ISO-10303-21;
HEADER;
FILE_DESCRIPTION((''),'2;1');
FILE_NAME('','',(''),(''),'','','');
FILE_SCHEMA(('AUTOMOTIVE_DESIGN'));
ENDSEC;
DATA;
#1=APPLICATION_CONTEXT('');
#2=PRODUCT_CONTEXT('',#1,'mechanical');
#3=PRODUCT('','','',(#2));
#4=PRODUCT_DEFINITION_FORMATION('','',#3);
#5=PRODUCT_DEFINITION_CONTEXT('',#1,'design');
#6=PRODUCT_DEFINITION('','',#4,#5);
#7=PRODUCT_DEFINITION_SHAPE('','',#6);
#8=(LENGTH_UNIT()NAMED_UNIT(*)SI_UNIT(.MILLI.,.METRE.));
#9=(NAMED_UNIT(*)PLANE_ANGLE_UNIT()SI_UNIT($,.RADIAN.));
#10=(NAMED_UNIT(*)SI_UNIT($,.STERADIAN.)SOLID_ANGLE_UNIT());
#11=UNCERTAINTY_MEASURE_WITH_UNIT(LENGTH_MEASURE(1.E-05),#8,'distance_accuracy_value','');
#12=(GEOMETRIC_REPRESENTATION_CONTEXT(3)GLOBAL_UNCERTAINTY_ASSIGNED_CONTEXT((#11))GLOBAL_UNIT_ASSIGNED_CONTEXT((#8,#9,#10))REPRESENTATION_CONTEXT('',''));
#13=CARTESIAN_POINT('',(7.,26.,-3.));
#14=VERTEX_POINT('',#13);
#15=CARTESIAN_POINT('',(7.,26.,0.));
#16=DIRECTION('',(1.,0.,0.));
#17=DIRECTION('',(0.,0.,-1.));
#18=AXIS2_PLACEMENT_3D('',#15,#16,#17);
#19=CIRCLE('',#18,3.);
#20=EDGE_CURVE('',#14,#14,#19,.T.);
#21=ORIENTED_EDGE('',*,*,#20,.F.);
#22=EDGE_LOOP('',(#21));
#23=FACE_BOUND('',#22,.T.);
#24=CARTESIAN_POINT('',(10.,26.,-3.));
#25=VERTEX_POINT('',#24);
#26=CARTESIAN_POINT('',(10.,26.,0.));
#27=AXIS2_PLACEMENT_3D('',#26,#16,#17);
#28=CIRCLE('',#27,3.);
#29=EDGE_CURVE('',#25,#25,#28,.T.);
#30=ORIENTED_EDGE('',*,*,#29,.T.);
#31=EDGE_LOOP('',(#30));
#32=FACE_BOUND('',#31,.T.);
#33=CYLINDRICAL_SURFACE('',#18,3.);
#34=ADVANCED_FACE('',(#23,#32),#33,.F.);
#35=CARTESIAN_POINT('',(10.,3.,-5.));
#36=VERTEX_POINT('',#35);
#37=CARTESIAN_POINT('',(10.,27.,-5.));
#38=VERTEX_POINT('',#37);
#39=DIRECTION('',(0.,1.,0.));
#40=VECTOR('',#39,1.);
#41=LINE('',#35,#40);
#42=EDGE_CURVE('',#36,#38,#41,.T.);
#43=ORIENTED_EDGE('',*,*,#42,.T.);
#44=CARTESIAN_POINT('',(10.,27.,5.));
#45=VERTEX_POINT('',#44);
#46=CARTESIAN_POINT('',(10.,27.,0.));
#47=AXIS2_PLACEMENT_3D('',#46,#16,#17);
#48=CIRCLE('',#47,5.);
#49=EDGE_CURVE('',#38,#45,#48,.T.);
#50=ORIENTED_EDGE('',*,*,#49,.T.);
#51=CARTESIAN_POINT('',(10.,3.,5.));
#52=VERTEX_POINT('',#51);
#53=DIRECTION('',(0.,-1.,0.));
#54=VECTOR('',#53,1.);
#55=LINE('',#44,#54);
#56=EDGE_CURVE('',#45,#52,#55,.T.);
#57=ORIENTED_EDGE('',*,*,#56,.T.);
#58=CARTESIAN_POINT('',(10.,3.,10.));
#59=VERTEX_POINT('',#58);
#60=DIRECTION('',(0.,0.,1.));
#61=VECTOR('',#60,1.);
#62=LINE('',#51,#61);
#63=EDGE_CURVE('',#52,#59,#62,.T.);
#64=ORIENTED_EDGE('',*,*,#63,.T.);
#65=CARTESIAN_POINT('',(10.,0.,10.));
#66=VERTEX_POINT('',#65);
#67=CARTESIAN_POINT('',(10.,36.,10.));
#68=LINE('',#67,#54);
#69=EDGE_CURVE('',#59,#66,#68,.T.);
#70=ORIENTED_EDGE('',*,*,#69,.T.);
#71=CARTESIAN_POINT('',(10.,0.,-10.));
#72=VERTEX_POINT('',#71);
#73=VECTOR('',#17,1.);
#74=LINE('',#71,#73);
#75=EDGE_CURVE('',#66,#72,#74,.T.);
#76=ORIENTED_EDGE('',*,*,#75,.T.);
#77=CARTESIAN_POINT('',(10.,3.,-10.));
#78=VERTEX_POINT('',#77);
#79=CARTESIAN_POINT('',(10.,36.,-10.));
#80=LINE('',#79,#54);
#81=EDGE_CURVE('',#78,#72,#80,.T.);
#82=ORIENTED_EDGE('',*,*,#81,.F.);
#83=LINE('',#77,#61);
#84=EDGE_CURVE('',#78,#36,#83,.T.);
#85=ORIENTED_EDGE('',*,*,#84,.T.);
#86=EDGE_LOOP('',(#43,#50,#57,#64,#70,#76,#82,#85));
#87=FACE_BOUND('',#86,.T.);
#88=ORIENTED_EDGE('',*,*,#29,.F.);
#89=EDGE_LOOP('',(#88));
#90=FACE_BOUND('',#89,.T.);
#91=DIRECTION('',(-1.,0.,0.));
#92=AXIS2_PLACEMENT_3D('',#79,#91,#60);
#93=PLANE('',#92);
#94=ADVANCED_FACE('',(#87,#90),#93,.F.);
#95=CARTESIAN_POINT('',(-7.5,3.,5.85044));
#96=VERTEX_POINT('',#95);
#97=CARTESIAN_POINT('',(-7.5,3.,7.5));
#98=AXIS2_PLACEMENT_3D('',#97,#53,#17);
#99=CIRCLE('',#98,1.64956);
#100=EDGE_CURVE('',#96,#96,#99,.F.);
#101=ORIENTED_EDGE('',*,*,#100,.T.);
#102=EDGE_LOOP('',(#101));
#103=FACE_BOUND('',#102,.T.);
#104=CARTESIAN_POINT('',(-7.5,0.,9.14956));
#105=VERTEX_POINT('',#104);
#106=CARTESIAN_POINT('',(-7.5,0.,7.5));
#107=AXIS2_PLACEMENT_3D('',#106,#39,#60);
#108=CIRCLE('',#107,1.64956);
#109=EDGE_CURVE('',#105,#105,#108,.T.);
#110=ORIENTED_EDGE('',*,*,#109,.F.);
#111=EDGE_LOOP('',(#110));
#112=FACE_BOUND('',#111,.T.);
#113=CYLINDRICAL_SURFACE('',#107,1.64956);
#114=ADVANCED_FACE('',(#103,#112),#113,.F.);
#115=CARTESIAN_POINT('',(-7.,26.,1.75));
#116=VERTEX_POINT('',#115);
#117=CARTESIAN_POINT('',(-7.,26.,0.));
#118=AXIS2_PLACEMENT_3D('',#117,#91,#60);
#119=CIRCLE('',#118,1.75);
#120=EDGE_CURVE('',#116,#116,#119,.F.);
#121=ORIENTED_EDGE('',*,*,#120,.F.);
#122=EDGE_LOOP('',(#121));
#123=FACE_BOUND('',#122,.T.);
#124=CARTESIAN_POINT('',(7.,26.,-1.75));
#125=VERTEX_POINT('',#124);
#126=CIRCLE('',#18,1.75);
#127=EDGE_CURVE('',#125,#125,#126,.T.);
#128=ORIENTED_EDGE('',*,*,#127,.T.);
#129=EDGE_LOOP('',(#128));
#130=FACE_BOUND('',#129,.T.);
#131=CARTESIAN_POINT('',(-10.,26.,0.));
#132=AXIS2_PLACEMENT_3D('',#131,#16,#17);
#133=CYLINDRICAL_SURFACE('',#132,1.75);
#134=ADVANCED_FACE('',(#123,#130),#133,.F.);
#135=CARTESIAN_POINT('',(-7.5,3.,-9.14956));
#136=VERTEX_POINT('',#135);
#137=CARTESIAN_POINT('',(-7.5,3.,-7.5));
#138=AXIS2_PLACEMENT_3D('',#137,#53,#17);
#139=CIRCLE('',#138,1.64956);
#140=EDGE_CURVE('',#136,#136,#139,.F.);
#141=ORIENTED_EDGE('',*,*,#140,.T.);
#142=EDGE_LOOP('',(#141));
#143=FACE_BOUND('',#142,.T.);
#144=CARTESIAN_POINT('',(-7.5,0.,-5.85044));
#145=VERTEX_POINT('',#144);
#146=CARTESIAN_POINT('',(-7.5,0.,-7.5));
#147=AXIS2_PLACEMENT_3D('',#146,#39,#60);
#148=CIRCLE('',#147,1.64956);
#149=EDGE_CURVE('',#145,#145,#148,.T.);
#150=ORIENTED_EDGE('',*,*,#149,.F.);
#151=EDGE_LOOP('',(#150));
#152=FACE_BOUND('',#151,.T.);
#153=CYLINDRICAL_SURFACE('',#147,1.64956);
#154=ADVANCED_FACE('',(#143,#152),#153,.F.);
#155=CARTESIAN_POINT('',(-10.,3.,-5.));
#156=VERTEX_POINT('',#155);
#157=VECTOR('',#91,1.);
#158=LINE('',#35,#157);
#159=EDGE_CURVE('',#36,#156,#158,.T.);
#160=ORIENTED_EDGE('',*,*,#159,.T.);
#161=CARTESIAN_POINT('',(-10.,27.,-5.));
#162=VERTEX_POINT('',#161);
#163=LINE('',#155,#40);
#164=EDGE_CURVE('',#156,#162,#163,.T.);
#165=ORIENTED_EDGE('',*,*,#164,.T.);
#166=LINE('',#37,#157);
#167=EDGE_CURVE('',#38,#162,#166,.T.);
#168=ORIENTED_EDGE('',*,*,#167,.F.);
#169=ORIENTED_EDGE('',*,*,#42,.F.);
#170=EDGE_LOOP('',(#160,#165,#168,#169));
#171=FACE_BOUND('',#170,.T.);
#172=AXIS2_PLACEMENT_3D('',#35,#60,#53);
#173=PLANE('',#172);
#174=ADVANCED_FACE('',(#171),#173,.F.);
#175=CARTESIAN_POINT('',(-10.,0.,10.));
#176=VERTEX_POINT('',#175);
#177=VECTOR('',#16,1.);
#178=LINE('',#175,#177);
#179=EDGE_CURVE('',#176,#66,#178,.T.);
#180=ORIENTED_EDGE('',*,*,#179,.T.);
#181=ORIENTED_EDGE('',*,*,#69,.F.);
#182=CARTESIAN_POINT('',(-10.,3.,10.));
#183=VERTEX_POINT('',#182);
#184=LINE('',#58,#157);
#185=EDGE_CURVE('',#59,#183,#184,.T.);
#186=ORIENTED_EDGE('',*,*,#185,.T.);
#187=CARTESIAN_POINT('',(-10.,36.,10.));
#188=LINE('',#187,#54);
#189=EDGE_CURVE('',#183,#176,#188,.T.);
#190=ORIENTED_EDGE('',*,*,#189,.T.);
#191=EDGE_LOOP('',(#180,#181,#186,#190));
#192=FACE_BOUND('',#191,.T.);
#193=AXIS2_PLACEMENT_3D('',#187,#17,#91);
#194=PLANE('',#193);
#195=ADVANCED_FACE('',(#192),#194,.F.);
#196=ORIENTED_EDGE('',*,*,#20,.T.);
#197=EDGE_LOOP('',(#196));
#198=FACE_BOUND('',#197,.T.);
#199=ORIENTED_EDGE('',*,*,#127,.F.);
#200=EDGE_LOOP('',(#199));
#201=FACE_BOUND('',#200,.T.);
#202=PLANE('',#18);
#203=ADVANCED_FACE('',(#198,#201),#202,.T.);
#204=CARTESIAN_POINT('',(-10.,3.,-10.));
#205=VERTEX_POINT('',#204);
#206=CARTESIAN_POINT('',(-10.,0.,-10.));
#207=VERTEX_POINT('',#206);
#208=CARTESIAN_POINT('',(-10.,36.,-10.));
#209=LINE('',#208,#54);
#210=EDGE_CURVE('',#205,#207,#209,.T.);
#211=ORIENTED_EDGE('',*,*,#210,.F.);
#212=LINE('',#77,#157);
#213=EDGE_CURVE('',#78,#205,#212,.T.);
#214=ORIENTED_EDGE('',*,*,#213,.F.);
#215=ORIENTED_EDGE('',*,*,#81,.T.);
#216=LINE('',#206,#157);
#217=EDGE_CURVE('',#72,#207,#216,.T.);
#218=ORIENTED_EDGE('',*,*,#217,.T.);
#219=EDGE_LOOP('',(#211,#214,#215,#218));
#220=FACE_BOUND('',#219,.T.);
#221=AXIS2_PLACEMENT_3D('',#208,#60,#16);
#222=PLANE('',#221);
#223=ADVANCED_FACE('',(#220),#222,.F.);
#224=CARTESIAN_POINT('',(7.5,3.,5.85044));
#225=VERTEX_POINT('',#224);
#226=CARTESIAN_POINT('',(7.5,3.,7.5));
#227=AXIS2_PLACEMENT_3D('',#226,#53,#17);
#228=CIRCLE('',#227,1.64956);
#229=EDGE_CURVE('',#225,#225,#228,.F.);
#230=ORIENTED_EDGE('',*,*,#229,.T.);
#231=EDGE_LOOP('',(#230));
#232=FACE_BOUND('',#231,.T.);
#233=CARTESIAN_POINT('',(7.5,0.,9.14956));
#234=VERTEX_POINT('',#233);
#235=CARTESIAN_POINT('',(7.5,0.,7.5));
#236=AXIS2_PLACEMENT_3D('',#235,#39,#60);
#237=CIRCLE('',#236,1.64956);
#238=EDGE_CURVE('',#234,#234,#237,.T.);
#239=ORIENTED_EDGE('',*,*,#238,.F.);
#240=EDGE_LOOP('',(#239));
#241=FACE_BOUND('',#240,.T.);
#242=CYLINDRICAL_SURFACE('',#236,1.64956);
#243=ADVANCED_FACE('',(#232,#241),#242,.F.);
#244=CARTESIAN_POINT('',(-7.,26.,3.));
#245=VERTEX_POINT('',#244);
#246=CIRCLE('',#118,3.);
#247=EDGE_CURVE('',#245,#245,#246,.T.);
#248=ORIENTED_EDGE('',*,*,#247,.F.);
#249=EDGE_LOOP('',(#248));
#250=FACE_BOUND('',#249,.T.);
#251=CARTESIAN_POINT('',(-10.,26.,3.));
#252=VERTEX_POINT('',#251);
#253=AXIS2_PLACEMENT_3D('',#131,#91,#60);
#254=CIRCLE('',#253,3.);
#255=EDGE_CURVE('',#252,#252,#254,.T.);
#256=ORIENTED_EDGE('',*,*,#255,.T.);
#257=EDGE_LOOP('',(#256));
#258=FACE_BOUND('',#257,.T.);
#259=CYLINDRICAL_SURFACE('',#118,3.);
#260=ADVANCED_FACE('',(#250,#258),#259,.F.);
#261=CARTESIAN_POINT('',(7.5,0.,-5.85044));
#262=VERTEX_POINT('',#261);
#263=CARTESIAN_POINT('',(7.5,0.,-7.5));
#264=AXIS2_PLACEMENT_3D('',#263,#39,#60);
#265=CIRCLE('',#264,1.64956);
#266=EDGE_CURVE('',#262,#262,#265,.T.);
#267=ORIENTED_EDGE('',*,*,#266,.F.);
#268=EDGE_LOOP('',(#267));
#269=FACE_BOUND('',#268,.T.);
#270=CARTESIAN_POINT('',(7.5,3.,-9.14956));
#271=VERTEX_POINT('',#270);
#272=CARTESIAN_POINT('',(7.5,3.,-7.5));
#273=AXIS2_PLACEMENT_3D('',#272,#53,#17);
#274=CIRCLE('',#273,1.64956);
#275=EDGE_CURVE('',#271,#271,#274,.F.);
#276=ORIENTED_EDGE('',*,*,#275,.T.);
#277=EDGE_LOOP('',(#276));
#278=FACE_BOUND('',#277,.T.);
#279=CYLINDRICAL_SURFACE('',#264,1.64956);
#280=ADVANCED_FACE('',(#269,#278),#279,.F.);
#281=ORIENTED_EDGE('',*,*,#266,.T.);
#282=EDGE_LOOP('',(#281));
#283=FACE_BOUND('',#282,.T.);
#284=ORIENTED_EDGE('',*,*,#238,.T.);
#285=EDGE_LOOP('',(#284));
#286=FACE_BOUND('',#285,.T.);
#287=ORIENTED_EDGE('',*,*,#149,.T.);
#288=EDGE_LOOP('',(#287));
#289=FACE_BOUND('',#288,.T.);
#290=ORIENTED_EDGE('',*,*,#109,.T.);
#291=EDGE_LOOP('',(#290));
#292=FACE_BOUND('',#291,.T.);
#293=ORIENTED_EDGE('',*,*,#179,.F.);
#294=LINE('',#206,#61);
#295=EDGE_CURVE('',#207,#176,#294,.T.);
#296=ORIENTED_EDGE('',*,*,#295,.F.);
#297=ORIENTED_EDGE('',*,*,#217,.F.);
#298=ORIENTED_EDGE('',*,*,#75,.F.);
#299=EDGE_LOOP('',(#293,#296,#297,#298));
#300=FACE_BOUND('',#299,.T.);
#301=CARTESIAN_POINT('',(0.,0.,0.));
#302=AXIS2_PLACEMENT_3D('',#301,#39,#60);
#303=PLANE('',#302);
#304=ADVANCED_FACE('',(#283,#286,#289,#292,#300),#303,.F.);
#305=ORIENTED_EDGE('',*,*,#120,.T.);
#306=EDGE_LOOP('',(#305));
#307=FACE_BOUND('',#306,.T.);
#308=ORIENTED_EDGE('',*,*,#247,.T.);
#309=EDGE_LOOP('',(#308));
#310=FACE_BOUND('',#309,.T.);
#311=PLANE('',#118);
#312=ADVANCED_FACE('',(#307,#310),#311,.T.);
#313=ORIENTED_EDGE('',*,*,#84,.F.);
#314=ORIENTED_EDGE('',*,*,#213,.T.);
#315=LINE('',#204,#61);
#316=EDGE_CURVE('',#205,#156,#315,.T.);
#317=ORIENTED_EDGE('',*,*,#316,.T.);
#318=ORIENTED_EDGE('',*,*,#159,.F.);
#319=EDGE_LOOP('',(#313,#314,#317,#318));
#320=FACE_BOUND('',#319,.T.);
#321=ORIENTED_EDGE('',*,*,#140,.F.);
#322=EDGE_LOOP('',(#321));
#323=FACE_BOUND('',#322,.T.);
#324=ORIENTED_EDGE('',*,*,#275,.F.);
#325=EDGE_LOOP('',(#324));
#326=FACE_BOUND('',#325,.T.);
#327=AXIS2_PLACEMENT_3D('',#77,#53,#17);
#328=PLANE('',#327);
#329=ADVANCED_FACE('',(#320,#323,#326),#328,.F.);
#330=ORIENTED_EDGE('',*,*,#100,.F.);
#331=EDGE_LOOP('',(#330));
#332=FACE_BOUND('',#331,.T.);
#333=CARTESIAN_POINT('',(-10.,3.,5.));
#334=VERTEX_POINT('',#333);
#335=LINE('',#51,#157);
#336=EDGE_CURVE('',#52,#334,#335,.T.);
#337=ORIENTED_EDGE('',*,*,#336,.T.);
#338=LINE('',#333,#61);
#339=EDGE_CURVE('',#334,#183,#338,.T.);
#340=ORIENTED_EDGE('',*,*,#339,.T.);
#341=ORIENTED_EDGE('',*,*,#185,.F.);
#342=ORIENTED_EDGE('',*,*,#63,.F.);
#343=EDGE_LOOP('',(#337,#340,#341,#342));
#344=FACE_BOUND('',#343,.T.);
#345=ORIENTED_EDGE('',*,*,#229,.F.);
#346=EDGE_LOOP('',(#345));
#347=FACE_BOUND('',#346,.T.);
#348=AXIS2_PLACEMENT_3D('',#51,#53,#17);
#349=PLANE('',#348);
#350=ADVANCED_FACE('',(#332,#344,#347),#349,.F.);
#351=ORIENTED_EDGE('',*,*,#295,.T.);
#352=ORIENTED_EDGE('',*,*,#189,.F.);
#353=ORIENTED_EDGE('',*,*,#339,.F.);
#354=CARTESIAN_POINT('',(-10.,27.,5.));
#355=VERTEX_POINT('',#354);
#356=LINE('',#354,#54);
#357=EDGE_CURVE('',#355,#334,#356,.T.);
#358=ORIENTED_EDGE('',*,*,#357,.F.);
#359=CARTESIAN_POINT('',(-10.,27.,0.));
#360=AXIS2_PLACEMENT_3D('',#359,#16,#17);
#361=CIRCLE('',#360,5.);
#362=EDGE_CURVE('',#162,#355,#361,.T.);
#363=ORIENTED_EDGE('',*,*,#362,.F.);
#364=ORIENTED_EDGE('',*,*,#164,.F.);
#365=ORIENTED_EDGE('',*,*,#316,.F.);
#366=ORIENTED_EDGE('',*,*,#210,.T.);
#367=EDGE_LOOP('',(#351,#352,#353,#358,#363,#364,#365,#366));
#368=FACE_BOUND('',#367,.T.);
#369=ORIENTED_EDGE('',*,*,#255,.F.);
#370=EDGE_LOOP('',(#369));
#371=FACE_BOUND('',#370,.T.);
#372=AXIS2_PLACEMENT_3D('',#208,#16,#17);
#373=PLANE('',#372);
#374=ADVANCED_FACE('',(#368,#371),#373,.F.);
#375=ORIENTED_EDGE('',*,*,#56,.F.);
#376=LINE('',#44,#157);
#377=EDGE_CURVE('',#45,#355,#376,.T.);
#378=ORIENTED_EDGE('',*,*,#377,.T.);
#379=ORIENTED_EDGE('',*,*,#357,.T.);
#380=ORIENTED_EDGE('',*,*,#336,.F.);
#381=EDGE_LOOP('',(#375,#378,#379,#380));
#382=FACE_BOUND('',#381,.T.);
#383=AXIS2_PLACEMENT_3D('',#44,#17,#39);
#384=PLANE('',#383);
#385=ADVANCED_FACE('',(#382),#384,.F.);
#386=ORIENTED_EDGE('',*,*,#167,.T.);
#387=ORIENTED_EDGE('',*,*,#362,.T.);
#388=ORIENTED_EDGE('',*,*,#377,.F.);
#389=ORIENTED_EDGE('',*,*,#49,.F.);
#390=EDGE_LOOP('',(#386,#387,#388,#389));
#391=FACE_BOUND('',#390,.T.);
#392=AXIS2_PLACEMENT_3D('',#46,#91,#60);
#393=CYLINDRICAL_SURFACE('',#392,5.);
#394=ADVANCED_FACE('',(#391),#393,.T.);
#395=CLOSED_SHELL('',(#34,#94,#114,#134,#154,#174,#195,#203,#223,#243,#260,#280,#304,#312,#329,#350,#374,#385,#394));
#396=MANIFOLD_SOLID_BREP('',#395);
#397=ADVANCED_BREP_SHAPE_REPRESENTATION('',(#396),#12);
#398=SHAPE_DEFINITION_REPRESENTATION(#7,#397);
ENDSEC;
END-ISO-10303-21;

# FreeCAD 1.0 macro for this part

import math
import FreeCAD as App
import Part
import Sketcher
Q = App.Units.Quantity


def add_polygon(sketch, points):
    """Adds a closed chain of lines whose ends are joined by coincident constraints."""
    first, n = sketch.GeometryCount, len(points)
    for a, b in zip(points, points[1:] + points[:1]):
        sketch.addGeometry(Part.LineSegment(App.Vector(*a, 0), App.Vector(*b, 0)), False)
    for i in range(n):
        sketch.addConstraint(Sketcher.Constraint("Coincident", first + i, 2, first + (i + 1) % n, 1))

doc = App.newDocument("Part")
body = doc.addObject("PartDesign::Body", "Body")

# Sketch on XZ plane
sketch1 = body.newObject("Sketcher::SketchObject", "Sketch")
sketch1.AttachmentSupport = (doc.getObject("XZ_Plane"), [""])
sketch1.MapMode = "FlatFace"
add_polygon(sketch1, [(-10, -10), (-10, 10), (10, 10), (10, -10)])  # lines 0-3
sketch1.addConstraint([
    Sketcher.Constraint("Vertical", 0),
    Sketcher.Constraint("Horizontal", 1),
    Sketcher.Constraint("Vertical", 2),
    Sketcher.Constraint("Horizontal", 3),
    Sketcher.Constraint("Symmetric", 0, 2, 2, 2, -1, 1),
    Sketcher.Constraint("Equal", 3, 0),
    Sketcher.Constraint("DistanceX", 1, 1, 1, 2, Q("20 mm")),
])
pad1 = body.newObject("PartDesign::Pad", "Pad")
pad1.Profile = sketch1
pad1.Length = 36
pad1.Reversed = True

# Sketch on YZ plane
sketch2 = body.newObject("Sketcher::SketchObject", "Sketch001")
sketch2.AttachmentSupport = (doc.getObject("YZ_Plane"), [""])
sketch2.MapMode = "FlatFace"
sketch2.AttachmentOffset = App.Placement(App.Vector(0, 0, 10), App.Rotation())
sketch2.addGeometry(Part.Circle(App.Vector(26, 0, 0), App.Vector(0, 0, 1), 3), False)
sketch2.addConstraint([
    Sketcher.Constraint("PointOnObject", 0, 3, -1),
    Sketcher.Constraint("Diameter", 0, Q("6 mm")),
    Sketcher.Constraint("DistanceX", -1, 1, 0, 3, Q("26 mm")),
])
pocket1 = body.newObject("PartDesign::Pocket", "Pocket")
pocket1.Profile = sketch2
pocket1.Length = 3

# Sketch on YZ plane
sketch3 = body.newObject("Sketcher::SketchObject", "Sketch002")
sketch3.AttachmentSupport = (doc.getObject("YZ_Plane"), [""])
sketch3.MapMode = "FlatFace"
sketch3.AttachmentOffset = App.Placement(App.Vector(0, 0, 7), App.Rotation())
sketch3.addGeometry(Part.Circle(App.Vector(26, 0, 0), App.Vector(0, 0, 1), 1.8), False)
sketch3.addConstraint([
    Sketcher.Constraint("PointOnObject", 0, 3, -1),
    Sketcher.Constraint("Diameter", 0, Q("3.5 mm")),
    Sketcher.Constraint("DistanceX", -1, 1, 0, 3, Q("26 mm")),
])
pocket2 = body.newObject("PartDesign::Pocket", "Pocket001")
pocket2.Profile = sketch3
pocket2.Type = "ThroughAll"

# Sketch on YZ plane
sketch4 = body.newObject("Sketcher::SketchObject", "Sketch003")
sketch4.AttachmentSupport = (doc.getObject("YZ_Plane"), [""])
sketch4.MapMode = "FlatFace"
sketch4.AttachmentOffset = App.Placement(App.Vector(0, 0, -7), App.Rotation())
sketch4.addGeometry(Part.Circle(App.Vector(26, 0, 0), App.Vector(0, 0, 1), 3), False)
sketch4.addConstraint([
    Sketcher.Constraint("PointOnObject", 0, 3, -1),
    Sketcher.Constraint("Diameter", 0, Q("6 mm")),
    Sketcher.Constraint("DistanceX", -1, 1, 0, 3, Q("26 mm")),
])
pocket3 = body.newObject("PartDesign::Pocket", "Pocket002")
pocket3.Profile = sketch4
pocket3.Length = 3

# Sketch on XZ plane
sketch5 = body.newObject("Sketcher::SketchObject", "Sketch004")
sketch5.AttachmentSupport = (doc.getObject("XZ_Plane"), [""])
sketch5.MapMode = "FlatFace"
sketch5.AttachmentOffset = App.Placement(App.Vector(0, 0, -36), App.Rotation())
sketch5.addGeometry([
    Part.Circle(App.Vector(-7.5, -7.5, 0), App.Vector(0, 0, 1), 1.6),
    Part.Circle(App.Vector(7.5, -7.5, 0), App.Vector(0, 0, 1), 1.6),
    Part.Circle(App.Vector(7.5, 7.5, 0), App.Vector(0, 0, 1), 1.6),
    Part.Circle(App.Vector(-7.5, 7.5, 0), App.Vector(0, 0, 1), 1.6),
], False)
sketch5.addConstraint([
    Sketcher.Constraint("Equal", 0, 1),
    Sketcher.Constraint("Equal", 1, 2),
    Sketcher.Constraint("Equal", 2, 3),
    Sketcher.Constraint("Symmetric", 0, 3, 2, 3, -1, 1),
    Sketcher.Constraint("Symmetric", 1, 3, 3, 3, -1, 1),
    Sketcher.Constraint("Symmetric", 0, 3, 1, 3, -2),
    Sketcher.Constraint("DistanceX", 0, 3, 1, 3, Q("15 mm")),
    Sketcher.Constraint("DistanceY", 1, 3, 2, 3, Q("15 mm")),
    Sketcher.Constraint("Diameter", 0, Q("3.299119 mm")),
])
pocket4 = body.newObject("PartDesign::Pocket", "Pocket003")
pocket4.Profile = sketch5
pocket4.Type = "ThroughAll"
pocket4.Reversed = True

# Sketch on YZ plane
sketch6 = body.newObject("Sketcher::SketchObject", "Sketch005")
sketch6.AttachmentSupport = (doc.getObject("YZ_Plane"), [""])
sketch6.MapMode = "FlatFace"
sketch6.AttachmentOffset = App.Placement(App.Vector(0, 0, -10), App.Rotation())
sketch6.addGeometry([
    Part.LineSegment(App.Vector(3, -10, 0), App.Vector(3, -5, 0)),  # 0
    Part.LineSegment(App.Vector(3, -5, 0), App.Vector(27, -5, 0)),  # 1
    Part.ArcOfCircle(Part.Circle(App.Vector(27, 0, 0), App.Vector(0, 0, 1), 5), math.radians(-90), math.radians(90)),  # 2
    Part.LineSegment(App.Vector(27, 5, 0), App.Vector(3, 5, 0)),  # 3
    Part.LineSegment(App.Vector(3, 5, 0), App.Vector(3, 10, 0)),  # 4
    Part.LineSegment(App.Vector(3, 10, 0), App.Vector(36, 10, 0)),  # 5
    Part.LineSegment(App.Vector(36, 10, 0), App.Vector(36, -10, 0)),  # 6
    Part.LineSegment(App.Vector(36, -10, 0), App.Vector(3, -10, 0)),  # 7
], False)
sketch6.addConstraint([
    Sketcher.Constraint("Coincident", 0, 2, 1, 1),
    Sketcher.Constraint("Tangent", 1, 2, 2, 1),
    Sketcher.Constraint("Tangent", 2, 2, 3, 1),
    Sketcher.Constraint("Coincident", 3, 2, 4, 1),
    Sketcher.Constraint("Coincident", 4, 2, 5, 1),
    Sketcher.Constraint("Coincident", 5, 2, 6, 1),
    Sketcher.Constraint("Coincident", 6, 2, 7, 1),
    Sketcher.Constraint("Coincident", 7, 2, 0, 1),
    Sketcher.Constraint("Vertical", 0),
    Sketcher.Constraint("Horizontal", 1),
    Sketcher.Constraint("Horizontal", 3),
    Sketcher.Constraint("Vertical", 4),
    Sketcher.Constraint("Horizontal", 5),
    Sketcher.Constraint("Vertical", 6),
    Sketcher.Constraint("Horizontal", 7),
    Sketcher.Constraint("Symmetric", 0, 2, 3, 2, -1),
    Sketcher.Constraint("Equal", 0, 4),
    Sketcher.Constraint("Radius", 2, Q("5 mm")),
    Sketcher.Constraint("DistanceX", 1, 1, 1, 2, Q("24 mm")),
    Sketcher.Constraint("DistanceX", 5, 1, 5, 2, Q("33 mm")),
    Sketcher.Constraint("DistanceY", 0, 1, 0, 2, Q("5 mm")),
    Sketcher.Constraint("DistanceX", -1, 1, 2, 3, Q("27 mm")),
])
pocket5 = body.newObject("PartDesign::Pocket", "Pocket004")
pocket5.Profile = sketch6
pocket5.Type = "ThroughAll"
pocket5.Reversed = True

doc.recompute()
